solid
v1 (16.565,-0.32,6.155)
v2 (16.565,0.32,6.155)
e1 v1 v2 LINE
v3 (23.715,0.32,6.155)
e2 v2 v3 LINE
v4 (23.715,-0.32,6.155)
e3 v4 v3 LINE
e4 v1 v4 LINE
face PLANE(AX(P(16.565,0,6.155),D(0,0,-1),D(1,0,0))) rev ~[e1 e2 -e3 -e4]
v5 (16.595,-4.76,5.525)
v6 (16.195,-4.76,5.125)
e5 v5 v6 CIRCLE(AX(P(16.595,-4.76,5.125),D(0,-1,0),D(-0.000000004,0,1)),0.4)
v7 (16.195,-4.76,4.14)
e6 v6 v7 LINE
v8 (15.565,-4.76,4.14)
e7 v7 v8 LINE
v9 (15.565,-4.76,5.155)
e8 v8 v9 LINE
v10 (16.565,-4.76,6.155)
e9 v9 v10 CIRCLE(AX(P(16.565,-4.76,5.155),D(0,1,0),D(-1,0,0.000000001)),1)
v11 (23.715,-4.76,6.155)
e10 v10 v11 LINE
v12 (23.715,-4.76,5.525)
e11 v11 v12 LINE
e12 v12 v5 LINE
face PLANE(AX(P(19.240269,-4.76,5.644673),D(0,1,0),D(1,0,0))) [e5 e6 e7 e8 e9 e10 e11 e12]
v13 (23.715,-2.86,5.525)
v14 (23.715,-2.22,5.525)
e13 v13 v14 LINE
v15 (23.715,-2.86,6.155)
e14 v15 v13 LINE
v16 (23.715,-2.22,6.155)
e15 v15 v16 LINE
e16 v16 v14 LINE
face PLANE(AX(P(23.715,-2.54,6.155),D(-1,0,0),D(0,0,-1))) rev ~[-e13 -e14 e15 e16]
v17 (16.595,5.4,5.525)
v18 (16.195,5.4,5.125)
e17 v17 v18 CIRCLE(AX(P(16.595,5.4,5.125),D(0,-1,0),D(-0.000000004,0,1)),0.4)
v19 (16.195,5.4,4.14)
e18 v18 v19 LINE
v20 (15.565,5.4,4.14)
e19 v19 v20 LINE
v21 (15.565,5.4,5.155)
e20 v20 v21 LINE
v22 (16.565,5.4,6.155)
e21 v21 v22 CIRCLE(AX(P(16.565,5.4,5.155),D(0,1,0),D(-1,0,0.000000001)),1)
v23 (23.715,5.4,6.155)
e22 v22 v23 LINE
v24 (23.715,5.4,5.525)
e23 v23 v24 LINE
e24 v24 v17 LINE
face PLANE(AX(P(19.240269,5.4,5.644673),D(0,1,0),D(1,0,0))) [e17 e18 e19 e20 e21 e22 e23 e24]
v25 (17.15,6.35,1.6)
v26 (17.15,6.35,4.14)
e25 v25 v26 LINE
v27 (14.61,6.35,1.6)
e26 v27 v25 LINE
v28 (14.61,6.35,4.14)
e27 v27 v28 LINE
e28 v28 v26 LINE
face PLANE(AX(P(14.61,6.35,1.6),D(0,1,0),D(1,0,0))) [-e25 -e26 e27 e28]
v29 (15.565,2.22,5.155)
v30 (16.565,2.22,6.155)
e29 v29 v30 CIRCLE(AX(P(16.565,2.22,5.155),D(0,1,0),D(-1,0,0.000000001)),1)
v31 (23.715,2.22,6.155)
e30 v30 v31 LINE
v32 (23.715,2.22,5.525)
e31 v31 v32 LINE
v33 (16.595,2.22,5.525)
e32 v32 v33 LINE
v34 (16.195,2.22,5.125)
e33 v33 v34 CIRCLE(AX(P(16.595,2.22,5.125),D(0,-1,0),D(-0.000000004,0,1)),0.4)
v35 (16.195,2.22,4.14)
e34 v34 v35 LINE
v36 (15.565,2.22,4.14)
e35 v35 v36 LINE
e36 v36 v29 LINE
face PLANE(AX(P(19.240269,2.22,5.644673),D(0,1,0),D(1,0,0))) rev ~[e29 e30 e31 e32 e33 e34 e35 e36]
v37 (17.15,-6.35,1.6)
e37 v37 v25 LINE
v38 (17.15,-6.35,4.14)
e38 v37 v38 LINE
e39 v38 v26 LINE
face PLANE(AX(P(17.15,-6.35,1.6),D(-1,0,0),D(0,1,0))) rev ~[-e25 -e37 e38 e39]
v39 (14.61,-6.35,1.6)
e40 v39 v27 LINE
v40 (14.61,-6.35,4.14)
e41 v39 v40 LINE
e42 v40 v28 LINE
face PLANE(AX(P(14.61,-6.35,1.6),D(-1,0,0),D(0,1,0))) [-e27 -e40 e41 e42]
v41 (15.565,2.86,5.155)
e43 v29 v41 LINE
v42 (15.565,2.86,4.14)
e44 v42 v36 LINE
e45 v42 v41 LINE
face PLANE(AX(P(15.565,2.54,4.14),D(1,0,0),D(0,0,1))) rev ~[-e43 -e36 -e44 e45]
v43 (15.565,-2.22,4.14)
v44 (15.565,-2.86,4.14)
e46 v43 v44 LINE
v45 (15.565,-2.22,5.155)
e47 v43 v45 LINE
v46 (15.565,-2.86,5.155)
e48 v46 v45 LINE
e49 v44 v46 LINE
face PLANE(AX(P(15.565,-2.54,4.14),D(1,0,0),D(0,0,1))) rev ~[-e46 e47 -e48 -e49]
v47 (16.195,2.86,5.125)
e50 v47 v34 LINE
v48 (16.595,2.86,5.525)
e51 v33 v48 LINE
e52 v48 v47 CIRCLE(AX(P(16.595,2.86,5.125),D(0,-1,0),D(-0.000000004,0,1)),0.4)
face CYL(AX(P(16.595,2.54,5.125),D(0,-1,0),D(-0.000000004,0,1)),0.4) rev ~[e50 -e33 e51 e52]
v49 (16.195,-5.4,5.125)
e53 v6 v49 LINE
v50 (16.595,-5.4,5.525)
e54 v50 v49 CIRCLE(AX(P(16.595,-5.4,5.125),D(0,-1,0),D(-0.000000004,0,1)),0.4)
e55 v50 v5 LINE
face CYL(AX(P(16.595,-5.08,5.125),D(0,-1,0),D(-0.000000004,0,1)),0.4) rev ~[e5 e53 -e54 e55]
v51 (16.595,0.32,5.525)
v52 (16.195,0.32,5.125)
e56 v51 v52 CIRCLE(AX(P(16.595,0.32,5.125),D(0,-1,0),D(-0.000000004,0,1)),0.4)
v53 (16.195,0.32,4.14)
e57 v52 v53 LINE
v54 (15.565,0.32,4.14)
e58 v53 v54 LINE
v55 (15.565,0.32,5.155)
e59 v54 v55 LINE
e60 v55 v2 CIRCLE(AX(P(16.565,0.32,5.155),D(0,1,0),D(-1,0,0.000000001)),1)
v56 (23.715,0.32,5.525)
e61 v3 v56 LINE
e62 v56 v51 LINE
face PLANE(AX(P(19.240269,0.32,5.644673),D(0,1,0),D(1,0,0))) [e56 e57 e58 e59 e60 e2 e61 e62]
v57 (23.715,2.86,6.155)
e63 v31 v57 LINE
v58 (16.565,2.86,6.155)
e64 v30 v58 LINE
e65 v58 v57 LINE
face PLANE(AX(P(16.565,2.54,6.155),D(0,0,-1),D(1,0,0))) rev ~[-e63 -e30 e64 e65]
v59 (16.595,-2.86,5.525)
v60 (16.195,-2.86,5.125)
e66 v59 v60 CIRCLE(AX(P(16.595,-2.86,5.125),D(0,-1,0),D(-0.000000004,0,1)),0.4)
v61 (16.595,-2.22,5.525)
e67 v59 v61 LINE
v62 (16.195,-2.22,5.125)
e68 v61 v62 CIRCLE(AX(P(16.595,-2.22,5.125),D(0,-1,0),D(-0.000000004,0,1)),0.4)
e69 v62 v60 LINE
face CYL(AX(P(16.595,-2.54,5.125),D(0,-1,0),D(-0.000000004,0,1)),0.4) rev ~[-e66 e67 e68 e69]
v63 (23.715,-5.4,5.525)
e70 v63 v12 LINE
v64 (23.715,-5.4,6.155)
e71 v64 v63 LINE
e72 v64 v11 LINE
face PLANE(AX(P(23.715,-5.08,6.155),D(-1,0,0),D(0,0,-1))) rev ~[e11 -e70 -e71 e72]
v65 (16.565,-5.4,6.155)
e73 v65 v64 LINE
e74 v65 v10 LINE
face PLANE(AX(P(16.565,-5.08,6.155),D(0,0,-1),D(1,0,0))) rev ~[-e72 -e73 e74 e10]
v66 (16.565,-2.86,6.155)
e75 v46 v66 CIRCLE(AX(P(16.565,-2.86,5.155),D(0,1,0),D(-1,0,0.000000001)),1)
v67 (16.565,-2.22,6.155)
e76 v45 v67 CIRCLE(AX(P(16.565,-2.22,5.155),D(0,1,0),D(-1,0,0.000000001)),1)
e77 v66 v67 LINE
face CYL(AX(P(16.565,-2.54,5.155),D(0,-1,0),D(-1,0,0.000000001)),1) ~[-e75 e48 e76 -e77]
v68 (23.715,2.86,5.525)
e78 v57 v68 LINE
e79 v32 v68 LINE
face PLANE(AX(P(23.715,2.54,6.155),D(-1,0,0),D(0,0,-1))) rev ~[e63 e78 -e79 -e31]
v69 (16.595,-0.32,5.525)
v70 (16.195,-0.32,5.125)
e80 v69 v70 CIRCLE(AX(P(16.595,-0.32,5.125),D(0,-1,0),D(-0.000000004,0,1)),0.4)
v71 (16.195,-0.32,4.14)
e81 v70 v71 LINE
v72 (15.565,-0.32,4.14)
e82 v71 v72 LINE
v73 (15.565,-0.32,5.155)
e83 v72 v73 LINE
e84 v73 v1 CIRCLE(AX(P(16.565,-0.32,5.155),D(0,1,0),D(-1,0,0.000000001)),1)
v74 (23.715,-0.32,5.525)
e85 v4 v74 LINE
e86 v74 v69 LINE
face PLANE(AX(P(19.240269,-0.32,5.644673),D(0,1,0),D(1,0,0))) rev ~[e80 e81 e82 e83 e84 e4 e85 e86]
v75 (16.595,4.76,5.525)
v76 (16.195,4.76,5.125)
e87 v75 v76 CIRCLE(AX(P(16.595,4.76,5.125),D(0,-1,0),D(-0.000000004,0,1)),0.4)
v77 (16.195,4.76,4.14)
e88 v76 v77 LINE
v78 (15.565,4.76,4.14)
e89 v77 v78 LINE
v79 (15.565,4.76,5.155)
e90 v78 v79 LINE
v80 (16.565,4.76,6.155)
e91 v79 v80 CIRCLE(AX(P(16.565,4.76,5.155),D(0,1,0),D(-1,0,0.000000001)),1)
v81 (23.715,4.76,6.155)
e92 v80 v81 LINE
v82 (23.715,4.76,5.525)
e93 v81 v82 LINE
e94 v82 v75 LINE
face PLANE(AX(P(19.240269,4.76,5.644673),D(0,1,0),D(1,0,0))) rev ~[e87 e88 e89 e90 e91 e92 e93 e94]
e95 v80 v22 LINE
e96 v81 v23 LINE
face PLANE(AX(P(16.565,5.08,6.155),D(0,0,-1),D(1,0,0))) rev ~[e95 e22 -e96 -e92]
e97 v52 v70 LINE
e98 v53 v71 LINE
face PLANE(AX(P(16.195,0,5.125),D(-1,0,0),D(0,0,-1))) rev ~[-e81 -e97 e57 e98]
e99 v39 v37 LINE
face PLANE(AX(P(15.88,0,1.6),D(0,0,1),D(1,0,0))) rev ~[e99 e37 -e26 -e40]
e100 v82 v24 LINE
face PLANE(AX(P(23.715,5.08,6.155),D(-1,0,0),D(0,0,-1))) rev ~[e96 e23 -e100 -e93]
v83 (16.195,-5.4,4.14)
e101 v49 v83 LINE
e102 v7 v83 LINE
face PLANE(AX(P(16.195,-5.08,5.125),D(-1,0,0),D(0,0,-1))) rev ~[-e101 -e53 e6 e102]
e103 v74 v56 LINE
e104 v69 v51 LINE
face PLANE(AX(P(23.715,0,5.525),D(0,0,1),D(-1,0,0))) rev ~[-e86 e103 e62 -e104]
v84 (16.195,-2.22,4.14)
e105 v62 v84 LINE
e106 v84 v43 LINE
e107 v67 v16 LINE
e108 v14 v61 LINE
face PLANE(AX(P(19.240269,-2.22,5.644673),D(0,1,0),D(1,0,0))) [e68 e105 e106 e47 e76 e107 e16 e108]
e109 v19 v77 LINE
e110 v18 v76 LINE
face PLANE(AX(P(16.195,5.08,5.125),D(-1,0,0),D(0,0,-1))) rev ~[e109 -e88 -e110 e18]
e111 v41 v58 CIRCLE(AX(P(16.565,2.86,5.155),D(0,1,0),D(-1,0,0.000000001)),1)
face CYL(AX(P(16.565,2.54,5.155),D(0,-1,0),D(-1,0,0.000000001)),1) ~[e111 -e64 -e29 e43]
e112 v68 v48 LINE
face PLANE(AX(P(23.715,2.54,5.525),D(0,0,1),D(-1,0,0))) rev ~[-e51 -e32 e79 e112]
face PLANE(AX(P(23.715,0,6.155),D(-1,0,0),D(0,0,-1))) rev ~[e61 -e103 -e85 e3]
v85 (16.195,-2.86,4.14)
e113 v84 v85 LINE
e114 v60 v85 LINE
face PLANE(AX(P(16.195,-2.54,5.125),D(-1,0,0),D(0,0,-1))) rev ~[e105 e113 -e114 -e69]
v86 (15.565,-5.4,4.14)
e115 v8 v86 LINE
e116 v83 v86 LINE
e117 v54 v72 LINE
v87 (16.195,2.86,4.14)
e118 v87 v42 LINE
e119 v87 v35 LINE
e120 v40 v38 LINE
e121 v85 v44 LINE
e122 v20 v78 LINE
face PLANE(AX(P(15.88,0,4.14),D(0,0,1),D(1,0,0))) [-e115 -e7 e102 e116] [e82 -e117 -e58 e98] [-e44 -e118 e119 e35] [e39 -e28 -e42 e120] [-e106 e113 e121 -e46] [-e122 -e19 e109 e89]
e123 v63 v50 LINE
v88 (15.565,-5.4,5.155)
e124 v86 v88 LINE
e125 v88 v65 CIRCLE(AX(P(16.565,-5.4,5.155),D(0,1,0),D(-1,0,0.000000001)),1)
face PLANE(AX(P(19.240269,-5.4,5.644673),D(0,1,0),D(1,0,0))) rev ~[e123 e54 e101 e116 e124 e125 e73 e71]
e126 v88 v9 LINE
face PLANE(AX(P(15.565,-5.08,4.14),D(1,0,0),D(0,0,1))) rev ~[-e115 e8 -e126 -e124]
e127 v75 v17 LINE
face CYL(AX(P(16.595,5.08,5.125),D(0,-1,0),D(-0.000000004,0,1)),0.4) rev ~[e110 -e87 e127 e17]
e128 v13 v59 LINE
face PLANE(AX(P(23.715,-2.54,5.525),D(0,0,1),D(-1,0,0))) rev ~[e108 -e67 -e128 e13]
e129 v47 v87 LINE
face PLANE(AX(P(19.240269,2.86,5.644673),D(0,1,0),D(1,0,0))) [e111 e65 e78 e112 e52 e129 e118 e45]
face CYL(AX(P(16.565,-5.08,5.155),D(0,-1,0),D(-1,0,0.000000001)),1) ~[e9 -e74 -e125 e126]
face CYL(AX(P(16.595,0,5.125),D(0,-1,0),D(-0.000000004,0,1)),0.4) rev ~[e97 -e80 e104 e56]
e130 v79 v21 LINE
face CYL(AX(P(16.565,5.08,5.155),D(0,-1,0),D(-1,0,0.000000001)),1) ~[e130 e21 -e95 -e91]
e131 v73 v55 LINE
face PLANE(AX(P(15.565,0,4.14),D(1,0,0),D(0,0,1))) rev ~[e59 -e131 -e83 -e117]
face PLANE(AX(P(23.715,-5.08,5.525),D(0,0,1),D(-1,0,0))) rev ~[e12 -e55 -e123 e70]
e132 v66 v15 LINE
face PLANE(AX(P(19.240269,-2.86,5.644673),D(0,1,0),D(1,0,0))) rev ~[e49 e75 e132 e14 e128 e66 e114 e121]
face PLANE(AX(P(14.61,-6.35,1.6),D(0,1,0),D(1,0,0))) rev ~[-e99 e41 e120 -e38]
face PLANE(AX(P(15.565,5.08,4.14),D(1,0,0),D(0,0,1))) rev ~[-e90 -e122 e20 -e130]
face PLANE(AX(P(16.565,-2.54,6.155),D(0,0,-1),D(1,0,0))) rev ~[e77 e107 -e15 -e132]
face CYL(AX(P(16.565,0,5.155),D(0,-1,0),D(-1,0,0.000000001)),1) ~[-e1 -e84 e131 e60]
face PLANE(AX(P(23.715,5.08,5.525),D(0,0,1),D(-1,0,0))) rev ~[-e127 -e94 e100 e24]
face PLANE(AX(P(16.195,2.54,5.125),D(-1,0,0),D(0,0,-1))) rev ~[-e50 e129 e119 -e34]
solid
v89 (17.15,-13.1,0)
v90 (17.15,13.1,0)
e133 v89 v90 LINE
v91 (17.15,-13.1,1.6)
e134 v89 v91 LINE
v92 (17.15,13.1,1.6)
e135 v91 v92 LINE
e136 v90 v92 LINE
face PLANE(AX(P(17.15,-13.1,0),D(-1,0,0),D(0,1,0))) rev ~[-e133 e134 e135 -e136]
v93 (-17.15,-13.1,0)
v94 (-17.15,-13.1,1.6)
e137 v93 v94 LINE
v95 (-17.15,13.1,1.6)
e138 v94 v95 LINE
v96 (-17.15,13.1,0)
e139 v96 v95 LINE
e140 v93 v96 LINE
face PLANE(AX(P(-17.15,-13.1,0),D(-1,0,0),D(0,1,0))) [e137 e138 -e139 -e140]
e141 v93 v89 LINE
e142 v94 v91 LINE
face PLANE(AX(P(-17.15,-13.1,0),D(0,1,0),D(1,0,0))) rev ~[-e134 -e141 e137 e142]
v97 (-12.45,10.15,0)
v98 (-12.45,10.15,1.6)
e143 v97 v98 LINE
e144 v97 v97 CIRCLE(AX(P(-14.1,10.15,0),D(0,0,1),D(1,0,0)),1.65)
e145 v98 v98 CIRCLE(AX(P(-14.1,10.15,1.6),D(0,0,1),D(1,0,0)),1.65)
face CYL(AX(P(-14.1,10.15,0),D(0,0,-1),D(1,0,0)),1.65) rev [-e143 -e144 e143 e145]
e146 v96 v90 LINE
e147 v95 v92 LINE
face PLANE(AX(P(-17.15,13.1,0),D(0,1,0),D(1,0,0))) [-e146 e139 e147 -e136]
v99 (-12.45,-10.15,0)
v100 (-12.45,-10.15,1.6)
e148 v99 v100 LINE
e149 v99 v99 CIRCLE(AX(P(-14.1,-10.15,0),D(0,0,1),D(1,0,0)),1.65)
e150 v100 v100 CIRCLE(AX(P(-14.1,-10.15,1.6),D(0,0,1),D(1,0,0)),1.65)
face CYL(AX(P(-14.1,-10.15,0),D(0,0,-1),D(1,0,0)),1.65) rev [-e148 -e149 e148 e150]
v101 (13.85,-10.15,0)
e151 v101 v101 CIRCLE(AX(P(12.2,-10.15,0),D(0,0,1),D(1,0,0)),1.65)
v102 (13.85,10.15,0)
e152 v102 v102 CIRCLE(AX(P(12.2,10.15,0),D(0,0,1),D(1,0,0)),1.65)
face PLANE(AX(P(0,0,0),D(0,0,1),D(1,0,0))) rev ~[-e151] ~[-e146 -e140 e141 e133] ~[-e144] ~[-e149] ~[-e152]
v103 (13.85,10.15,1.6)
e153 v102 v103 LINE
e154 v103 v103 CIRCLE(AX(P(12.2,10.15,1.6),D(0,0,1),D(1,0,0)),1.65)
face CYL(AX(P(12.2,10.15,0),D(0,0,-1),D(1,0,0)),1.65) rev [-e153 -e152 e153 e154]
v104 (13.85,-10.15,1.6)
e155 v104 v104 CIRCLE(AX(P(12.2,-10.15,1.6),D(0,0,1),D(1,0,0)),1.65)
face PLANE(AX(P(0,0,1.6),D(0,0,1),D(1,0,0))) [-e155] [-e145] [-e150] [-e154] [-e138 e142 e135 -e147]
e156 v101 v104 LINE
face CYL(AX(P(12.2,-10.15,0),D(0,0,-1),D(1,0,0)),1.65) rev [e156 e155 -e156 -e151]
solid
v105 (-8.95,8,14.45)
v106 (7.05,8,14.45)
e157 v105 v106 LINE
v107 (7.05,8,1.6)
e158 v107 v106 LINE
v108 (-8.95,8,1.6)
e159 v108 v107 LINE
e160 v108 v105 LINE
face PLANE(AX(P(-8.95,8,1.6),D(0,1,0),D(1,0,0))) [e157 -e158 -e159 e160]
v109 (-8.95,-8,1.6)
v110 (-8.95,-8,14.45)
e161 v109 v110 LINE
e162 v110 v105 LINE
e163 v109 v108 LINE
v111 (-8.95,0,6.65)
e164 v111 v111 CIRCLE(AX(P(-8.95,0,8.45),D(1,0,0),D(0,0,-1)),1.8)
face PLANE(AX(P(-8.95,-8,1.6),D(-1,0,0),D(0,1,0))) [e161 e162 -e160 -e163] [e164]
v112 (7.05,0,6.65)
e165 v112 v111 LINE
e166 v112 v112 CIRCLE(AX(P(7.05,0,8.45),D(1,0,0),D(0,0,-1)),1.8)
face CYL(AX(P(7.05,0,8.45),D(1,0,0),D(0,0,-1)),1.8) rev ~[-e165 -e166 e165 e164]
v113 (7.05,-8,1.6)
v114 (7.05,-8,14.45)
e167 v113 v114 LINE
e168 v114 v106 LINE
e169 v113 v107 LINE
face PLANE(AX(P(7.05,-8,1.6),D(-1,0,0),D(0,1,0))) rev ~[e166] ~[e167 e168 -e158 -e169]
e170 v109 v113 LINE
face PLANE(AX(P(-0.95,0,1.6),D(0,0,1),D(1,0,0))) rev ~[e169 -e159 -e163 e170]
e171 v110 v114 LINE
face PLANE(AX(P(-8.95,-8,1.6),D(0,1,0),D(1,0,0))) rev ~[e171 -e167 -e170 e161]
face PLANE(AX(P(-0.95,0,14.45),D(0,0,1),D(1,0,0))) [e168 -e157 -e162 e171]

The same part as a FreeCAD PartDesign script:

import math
import FreeCAD as App
import Part
import Sketcher
from FreeCAD import Vector


def add_polygon(sketch, points):
    """Adds a closed chain of lines whose ends are joined by coincident constraints."""
    first, n = sketch.GeometryCount, len(points)
    for a, b in zip(points, points[1:] + points[:1]):
        sketch.addGeometry(Part.LineSegment(App.Vector(*a, 0), App.Vector(*b, 0)), False)
    for i in range(n):
        sketch.addConstraint(Sketcher.Constraint("Coincident", first + i, 2, first + (i + 1) % n, 1))

doc = App.newDocument("Part")
body = doc.addObject("PartDesign::Body", "Body")

# Sketch on XY plane
sketch1 = doc.addObject("Sketcher::SketchObject", "Sketch")
body.addObject(sketch1)
sketch1.AttachmentSupport = (doc.XY_Plane, [""])
sketch1.MapMode = "FlatFace"
add_polygon(sketch1, [(-17.15, 13.1), (-17.15, -13.1), (17.15, -13.1), (17.15, 13.1)])  # lines 0-3
sketch1.addGeometry(Part.Circle(Vector(-14.1, -10.15, 0), Vector(0, 0, 1), 1.65), False)  # 4
sketch1.addGeometry(Part.Circle(Vector(12.2, -10.15, 0), Vector(0, 0, 1), 1.65), False)  # 5
sketch1.addGeometry(Part.Circle(Vector(-14.1, 10.15, 0), Vector(0, 0, 1), 1.65), False)  # 6
sketch1.addGeometry(Part.Circle(Vector(12.2, 10.15, 0), Vector(0, 0, 1), 1.65), False)  # 7
sketch1.addConstraint([
    Sketcher.Constraint("Vertical", 0),
    Sketcher.Constraint("Horizontal", 1),
    Sketcher.Constraint("Vertical", 2),
    Sketcher.Constraint("Horizontal", 3),
    Sketcher.Constraint("Equal", 4, 5),
    Sketcher.Constraint("Equal", 5, 6),
    Sketcher.Constraint("Equal", 6, 7),
    Sketcher.Constraint("Symmetric", 0, 2, 2, 2, -1, 1),
    Sketcher.Constraint("Symmetric", 4, 3, 6, 3, -1),
    Sketcher.Constraint("Symmetric", 5, 3, 7, 3, -1),
    Sketcher.Constraint("Horizontal", 4, 3, 5, 3),
    Sketcher.Constraint("Diameter", 4, 3.3),
    Sketcher.Constraint("DistanceX", 1, 1, 1, 2, 34.3),
    Sketcher.Constraint("DistanceY", 0, 2, 0, 1, 26.2),
    Sketcher.Constraint("DistanceX", 4, 3, -1, 1, 14.1),
    Sketcher.Constraint("DistanceX", -1, 1, 5, 3, 12.2),
    Sketcher.Constraint("DistanceY", 4, 3, 6, 3, 20.3),
])
pad1 = doc.addObject("PartDesign::Pad", "Pad")
body.addObject(pad1)
pad1.Profile = sketch1
pad1.Length = 1.6
body2 = doc.addObject("PartDesign::Body", "Body001")

# Sketch on XY plane
sketch2 = doc.addObject("Sketcher::SketchObject", "Sketch001")
body2.addObject(sketch2)
sketch2.AttachmentSupport = (doc.getObject("XY_Plane001"), [""])
sketch2.MapMode = "FlatFace"
sketch2.AttachmentOffset = App.Placement(Vector(0, 0, 1.6), App.Rotation())
add_polygon(sketch2, [(-8.95, 8), (-8.95, -8), (7.05, -8), (7.05, 8)])  # lines 0-3
sketch2.addConstraint([
    Sketcher.Constraint("Vertical", 0),
    Sketcher.Constraint("Horizontal", 1),
    Sketcher.Constraint("Vertical", 2),
    Sketcher.Constraint("Horizontal", 3),
    Sketcher.Constraint("Equal", 3, 0),
    Sketcher.Constraint("DistanceX", 1, 1, 1, 2, 16.0),
    Sketcher.Constraint("DistanceY", 0, 2, -1, 1, 8.0),
    Sketcher.Constraint("DistanceX", 0, 2, -1, 1, 8.95),
])
pad2 = doc.addObject("PartDesign::Pad", "Pad001")
body2.addObject(pad2)
pad2.Profile = sketch2
pad2.Length = 12.85

# Sketch on YZ plane
sketch3 = doc.addObject("Sketcher::SketchObject", "Sketch002")
body2.addObject(sketch3)
sketch3.AttachmentSupport = (doc.getObject("YZ_Plane001"), [""])
sketch3.MapMode = "FlatFace"
sketch3.AttachmentOffset = App.Placement(Vector(0, 0, 7.05), App.Rotation())
sketch3.addGeometry(Part.Circle(Vector(0, 8.45, 0), Vector(0, 0, 1), 1.8), False)
sketch3.addConstraint([
    Sketcher.Constraint("PointOnObject", 0, 3, -2),
    Sketcher.Constraint("Diameter", 0, 3.6),
    Sketcher.Constraint("DistanceY", -1, 1, 0, 3, 8.45),
])
pocket1 = doc.addObject("PartDesign::Pocket", "Pocket")
body2.addObject(pocket1)
pocket1.Profile = sketch3
pocket1.Type = "ThroughAll"
body3 = doc.addObject("PartDesign::Body", "Body002")

# Sketch on XY plane
sketch4 = doc.addObject("Sketcher::SketchObject", "Sketch003")
body3.addObject(sketch4)
sketch4.AttachmentSupport = (doc.getObject("XY_Plane002"), [""])
sketch4.MapMode = "FlatFace"
sketch4.AttachmentOffset = App.Placement(Vector(0, 0, 1.6), App.Rotation())
add_polygon(sketch4, [(14.61, 6.35), (14.61, -6.35), (17.15, -6.35), (17.15, 6.35)])  # lines 0-3
sketch4.addConstraint([
    Sketcher.Constraint("Vertical", 0),
    Sketcher.Constraint("Horizontal", 1),
    Sketcher.Constraint("Vertical", 2),
    Sketcher.Constraint("Horizontal", 3),
    Sketcher.Constraint("DistanceY", 0, 2, 0, 1, 12.7),
    Sketcher.Constraint("DistanceX", 1, 1, 1, 2, 2.54),
    Sketcher.Constraint("DistanceX", -1, 1, 0, 2, 14.61),
    Sketcher.Constraint("DistanceY", 0, 2, -1, 1, 6.35),
])
pad3 = doc.addObject("PartDesign::Pad", "Pad002")
body3.addObject(pad3)
pad3.Profile = sketch4
pad3.Length = 2.54

# Sketch on XZ plane
sketch5 = doc.addObject("Sketcher::SketchObject", "Sketch004")
body3.addObject(sketch5)
sketch5.AttachmentSupport = (doc.getObject("XZ_Plane002"), [""])
sketch5.MapMode = "FlatFace"
sketch5.AttachmentOffset = App.Placement(Vector(0, 0, 5.08), App.Rotation())
sketch5.addGeometry([
    Part.LineSegment(Vector(15.565, 5.155, 0), Vector(15.565, 4.14, 0)),  # 0
    Part.LineSegment(Vector(15.565, 4.14, 0), Vector(16.195, 4.14, 0)),  # 1
    Part.LineSegment(Vector(16.195, 4.14, 0), Vector(16.195, 5.125, 0)),  # 2
    Part.ArcOfCircle(Part.Circle(Vector(16.595, 5.125, 0), Vector(0, 0, 1), 0.4), math.radians(90), math.radians(180)),  # 3
    Part.LineSegment(Vector(16.595, 5.525, 0), Vector(23.715, 5.525, 0)),  # 4
    Part.LineSegment(Vector(23.715, 5.525, 0), Vector(23.715, 6.155, 0)),  # 5
    Part.LineSegment(Vector(23.715, 6.155, 0), Vector(16.565, 6.155, 0)),  # 6
    Part.ArcOfCircle(Part.Circle(Vector(16.565, 5.155, 0), Vector(0, 0, 1), 1), math.radians(90), math.radians(180)),  # 7
], False)
sketch5.addConstraint([
    Sketcher.Constraint("Coincident", 0, 2, 1, 1),
    Sketcher.Constraint("Coincident", 1, 2, 2, 1),
    Sketcher.Constraint("Tangent", 2, 2, 3, 2),
    Sketcher.Constraint("Tangent", 3, 1, 4, 1),
    Sketcher.Constraint("Coincident", 4, 2, 5, 1),
    Sketcher.Constraint("Coincident", 5, 2, 6, 1),
    Sketcher.Constraint("Tangent", 6, 2, 7, 1),
    Sketcher.Constraint("Tangent", 7, 2, 0, 1),
    Sketcher.Constraint("Vertical", 0),
    Sketcher.Constraint("Horizontal", 1),
    Sketcher.Constraint("Vertical", 2),
    Sketcher.Constraint("Horizontal", 4),
    Sketcher.Constraint("Vertical", 5),
    Sketcher.Constraint("Horizontal", 6),
    Sketcher.Constraint("Equal", 1, 5),
    Sketcher.Constraint("Radius", 7, 1.0),
    Sketcher.Constraint("Radius", 3, 0.4),
    Sketcher.Constraint("DistanceX", 1, 1, 1, 2, 0.63),
    Sketcher.Constraint("DistanceX", 4, 1, 4, 2, 7.12),
    Sketcher.Constraint("DistanceY", 0, 2, 0, 1, 1.015),
    Sketcher.Constraint("DistanceY", -1, 1, 0, 2, 4.14),
    Sketcher.Constraint("DistanceX", -1, 1, 3, 3, 16.595),
])
pad4 = doc.addObject("PartDesign::Pad", "Pad003")
body3.addObject(pad4)
pad4.Profile = sketch5
pad4.Length = 0.64
pad4.Midplane = True
doc.recompute()

linearpattern = doc.addObject("PartDesign::LinearPattern", "LinearPattern")
body3.addObject(linearpattern)
linearpattern.Originals = [pad4]
linearpattern.Direction = (doc.getObject("Y_Axis002"), [""])
linearpattern.Mode = "offset"
linearpattern.Offset = 2.54
linearpattern.Occurrences = 5
body3.Tip = linearpattern

doc.recompute()
